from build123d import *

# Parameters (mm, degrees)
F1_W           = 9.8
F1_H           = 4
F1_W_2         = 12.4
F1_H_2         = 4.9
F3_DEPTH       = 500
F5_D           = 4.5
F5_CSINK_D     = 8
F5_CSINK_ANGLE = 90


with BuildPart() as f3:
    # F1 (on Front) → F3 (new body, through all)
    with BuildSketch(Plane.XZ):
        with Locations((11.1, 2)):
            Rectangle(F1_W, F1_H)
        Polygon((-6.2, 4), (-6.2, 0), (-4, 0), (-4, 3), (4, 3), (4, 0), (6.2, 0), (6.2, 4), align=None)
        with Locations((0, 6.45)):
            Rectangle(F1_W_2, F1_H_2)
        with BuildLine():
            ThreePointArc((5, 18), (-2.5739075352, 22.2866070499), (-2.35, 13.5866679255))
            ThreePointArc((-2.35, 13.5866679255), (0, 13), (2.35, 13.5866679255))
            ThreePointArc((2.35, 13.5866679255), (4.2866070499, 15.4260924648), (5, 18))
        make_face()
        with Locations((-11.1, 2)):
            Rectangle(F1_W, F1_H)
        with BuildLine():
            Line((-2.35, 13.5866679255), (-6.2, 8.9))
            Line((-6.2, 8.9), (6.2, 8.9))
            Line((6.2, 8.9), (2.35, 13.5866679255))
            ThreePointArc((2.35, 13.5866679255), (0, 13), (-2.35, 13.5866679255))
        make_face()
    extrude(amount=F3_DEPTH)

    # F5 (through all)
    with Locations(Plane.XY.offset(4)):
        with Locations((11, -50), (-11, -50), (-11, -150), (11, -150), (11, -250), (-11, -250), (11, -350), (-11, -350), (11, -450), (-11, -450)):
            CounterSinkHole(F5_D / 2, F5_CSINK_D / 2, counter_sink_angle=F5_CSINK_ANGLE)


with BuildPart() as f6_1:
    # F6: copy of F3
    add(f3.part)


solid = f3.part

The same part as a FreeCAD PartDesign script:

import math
import FreeCAD as App
import Part
import Sketcher
from FreeCAD import Vector

doc = App.newDocument("Part")
body = doc.addObject("PartDesign::Body", "Body")

# Sketch on XZ plane
sketch1 = doc.addObject("Sketcher::SketchObject", "Sketch")
body.addObject(sketch1)
sketch1.AttachmentSupport = (doc.XZ_Plane, [""])
sketch1.MapMode = "FlatFace"
sketch1.addGeometry([
    Part.LineSegment(Vector(16, 0, 0), Vector(16, 4, 0)),  # 0
    Part.LineSegment(Vector(16, 4, 0), Vector(6.2, 4, 0)),  # 1
    Part.LineSegment(Vector(6.2, 4, 0), Vector(6.2, 8.9, 0)),  # 2
    Part.LineSegment(Vector(6.2, 8.9, 0), Vector(2.4, 13.6, 0)),  # 3
    Part.ArcOfCircle(Part.Circle(Vector(0, 18, 0), Vector(0, 0, 1), 5), math.radians(-62), math.radians(0)),  # 4
    Part.ArcOfCircle(Part.Circle(Vector(0, 18, 0), Vector(0, 0, 1), 5), math.radians(0), math.radians(242)),  # 5
    Part.LineSegment(Vector(-2.4, 13.6, 0), Vector(-6.2, 8.9, 0)),  # 6
    Part.LineSegment(Vector(-6.2, 8.9, 0), Vector(-6.2, 4, 0)),  # 7
    Part.LineSegment(Vector(-6.2, 4, 0), Vector(-16, 4, 0)),  # 8
    Part.LineSegment(Vector(-16, 4, 0), Vector(-16, 0, 0)),  # 9
    Part.LineSegment(Vector(-16, 0, 0), Vector(-4, 0, 0)),  # 10
    Part.LineSegment(Vector(-4, 0, 0), Vector(-4, 3, 0)),  # 11
    Part.LineSegment(Vector(-4, 3, 0), Vector(4, 3, 0)),  # 12
    Part.LineSegment(Vector(4, 3, 0), Vector(4, 0, 0)),  # 13
    Part.LineSegment(Vector(4, 0, 0), Vector(16, 0, 0)),  # 14
], False)
sketch1.addConstraint([
    Sketcher.Constraint("Coincident", 0, 2, 1, 1),
    Sketcher.Constraint("Coincident", 1, 2, 2, 1),
    Sketcher.Constraint("Coincident", 2, 2, 3, 1),
    Sketcher.Constraint("Coincident", 3, 2, 4, 1),
    Sketcher.Constraint("Tangent", 4, 2, 5, 1),
    Sketcher.Constraint("Coincident", 5, 2, 6, 1),
    Sketcher.Constraint("Coincident", 6, 2, 7, 1),
    Sketcher.Constraint("Coincident", 7, 2, 8, 1),
    Sketcher.Constraint("Coincident", 8, 2, 9, 1),
    Sketcher.Constraint("Coincident", 9, 2, 10, 1),
    Sketcher.Constraint("Coincident", 10, 2, 11, 1),
    Sketcher.Constraint("Coincident", 11, 2, 12, 1),
    Sketcher.Constraint("Coincident", 12, 2, 13, 1),
    Sketcher.Constraint("Coincident", 13, 2, 14, 1),
    Sketcher.Constraint("Coincident", 14, 2, 0, 1),
    Sketcher.Constraint("Vertical", 0),
    Sketcher.Constraint("Horizontal", 1),
    Sketcher.Constraint("Vertical", 2),
    Sketcher.Constraint("Vertical", 7),
    Sketcher.Constraint("Horizontal", 8),
    Sketcher.Constraint("Vertical", 9),
    Sketcher.Constraint("Horizontal", 10),
    Sketcher.Constraint("Vertical", 11),
    Sketcher.Constraint("Horizontal", 12),
    Sketcher.Constraint("Vertical", 13),
    Sketcher.Constraint("Horizontal", 14),
    Sketcher.Constraint("Equal", 4, 5),
    Sketcher.Constraint("Symmetric", 10, 2, 13, 2, -1, 1),
    Sketcher.Constraint("Symmetric", 3, 2, 5, 2, -2),
    Sketcher.Constraint("Symmetric", 2, 2, 6, 2, -2),
    Sketcher.Constraint("Symmetric", 0, 2, 8, 2, -2),
    Sketcher.Constraint("PointOnObject", 9, 2, -1),
    Sketcher.Constraint("Horizontal", 5, 3, 4, 2),
    Sketcher.Constraint("Radius", 4, 5.0),
    Sketcher.Constraint("DistanceX", 10, 1, 10, 2, 12.0),
    Sketcher.Constraint("DistanceX", 12, 1, 12, 2, 8.0),
    Sketcher.Constraint("DistanceY", 0, 1, 0, 2, 4.0),
    Sketcher.Constraint("DistanceY", 11, 1, 11, 2, 3.0),
    Sketcher.Constraint("DistanceX", 1, 2, 1, 1, 9.8),
    Sketcher.Constraint("DistanceY", 2, 1, 2, 2, 4.9),
    Sketcher.Constraint("DistanceY", -1, 1, 4, 3, 18.0),
    Sketcher.Constraint("DistanceX", 5, 2, 3, 2, 4.7),
])
pad1 = doc.addObject("PartDesign::Pad", "Pad")
body.addObject(pad1)
pad1.Profile = sketch1
pad1.Length = 500

# Sketch on XY plane
sketch2 = doc.addObject("Sketcher::SketchObject", "Sketch001")
body.addObject(sketch2)
sketch2.AttachmentSupport = (doc.XY_Plane, [""])
sketch2.MapMode = "FlatFace"
sketch2.AttachmentOffset = App.Placement(Vector(0, 0, 4), App.Rotation())
sketch2.addGeometry([
    Part.Circle(Vector(11, -50, 0), Vector(0, 0, 1), 2.2),  # 0
    Part.Circle(Vector(-11, -50, 0), Vector(0, 0, 1), 2.2),  # 1
    Part.Circle(Vector(-11, -150, 0), Vector(0, 0, 1), 2.2),  # 2
    Part.Circle(Vector(11, -150, 0), Vector(0, 0, 1), 2.2),  # 3
    Part.Circle(Vector(11, -250, 0), Vector(0, 0, 1), 2.2),  # 4
    Part.Circle(Vector(-11, -250, 0), Vector(0, 0, 1), 2.2),  # 5
    Part.Circle(Vector(11, -350, 0), Vector(0, 0, 1), 2.2),  # 6
    Part.Circle(Vector(-11, -350, 0), Vector(0, 0, 1), 2.2),  # 7
    Part.Circle(Vector(11, -450, 0), Vector(0, 0, 1), 2.2),  # 8
    Part.Circle(Vector(-11, -450, 0), Vector(0, 0, 1), 2.2),  # 9
], False)
sketch2.addConstraint([
    Sketcher.Constraint("Equal", 0, 1),
    Sketcher.Constraint("Equal", 1, 2),
    Sketcher.Constraint("Equal", 2, 3),
    Sketcher.Constraint("Equal", 3, 4),
    Sketcher.Constraint("Equal", 4, 5),
    Sketcher.Constraint("Equal", 5, 6),
    Sketcher.Constraint("Equal", 6, 7),
    Sketcher.Constraint("Equal", 7, 8),
    Sketcher.Constraint("Equal", 8, 9),
    Sketcher.Constraint("Symmetric", 0, 3, 1, 3, -2),
    Sketcher.Constraint("Symmetric", 2, 3, 3, 3, -2),
    Sketcher.Constraint("Symmetric", 4, 3, 5, 3, -2),
    Sketcher.Constraint("Symmetric", 6, 3, 7, 3, -2),
    Sketcher.Constraint("Symmetric", 8, 3, 9, 3, -2),
    Sketcher.Constraint("Vertical", 1, 3, 2, 3),
    Sketcher.Constraint("Vertical", 3, 3, 4, 3),
    Sketcher.Constraint("Vertical", 4, 3, 6, 3),
    Sketcher.Constraint("Vertical", 6, 3, 8, 3),
    Sketcher.Constraint("Diameter", 0, 4.5),
    Sketcher.Constraint("DistanceX", -1, 1, 0, 3, 11.0),
    Sketcher.Constraint("DistanceY", 0, 3, -1, 1, 50.0),
    Sketcher.Constraint("DistanceY", 2, 3, -1, 1, 150.0),
    Sketcher.Constraint("DistanceY", 4, 3, -1, 1, 250.0),
    Sketcher.Constraint("DistanceY", 6, 3, -1, 1, 350.0),
    Sketcher.Constraint("DistanceY", 8, 3, -1, 1, 450.0),
])
doc.recompute()
hole = doc.addObject("PartDesign::Hole", "Hole")
body.addObject(hole)
hole.Profile = sketch2
hole.ThreadType = "None"
hole.Diameter = 4.5
hole.DepthType = "ThroughAll"
hole.HoleCutType = "Countersink"
hole.HoleCutDiameter = 8
hole.HoleCutCountersinkAngle = 90
body2 = doc.addObject("PartDesign::Body", "Body001")
doc.recompute()

body2.BaseFeature = body
doc.recompute()
body.Visibility = False

doc.recompute()
